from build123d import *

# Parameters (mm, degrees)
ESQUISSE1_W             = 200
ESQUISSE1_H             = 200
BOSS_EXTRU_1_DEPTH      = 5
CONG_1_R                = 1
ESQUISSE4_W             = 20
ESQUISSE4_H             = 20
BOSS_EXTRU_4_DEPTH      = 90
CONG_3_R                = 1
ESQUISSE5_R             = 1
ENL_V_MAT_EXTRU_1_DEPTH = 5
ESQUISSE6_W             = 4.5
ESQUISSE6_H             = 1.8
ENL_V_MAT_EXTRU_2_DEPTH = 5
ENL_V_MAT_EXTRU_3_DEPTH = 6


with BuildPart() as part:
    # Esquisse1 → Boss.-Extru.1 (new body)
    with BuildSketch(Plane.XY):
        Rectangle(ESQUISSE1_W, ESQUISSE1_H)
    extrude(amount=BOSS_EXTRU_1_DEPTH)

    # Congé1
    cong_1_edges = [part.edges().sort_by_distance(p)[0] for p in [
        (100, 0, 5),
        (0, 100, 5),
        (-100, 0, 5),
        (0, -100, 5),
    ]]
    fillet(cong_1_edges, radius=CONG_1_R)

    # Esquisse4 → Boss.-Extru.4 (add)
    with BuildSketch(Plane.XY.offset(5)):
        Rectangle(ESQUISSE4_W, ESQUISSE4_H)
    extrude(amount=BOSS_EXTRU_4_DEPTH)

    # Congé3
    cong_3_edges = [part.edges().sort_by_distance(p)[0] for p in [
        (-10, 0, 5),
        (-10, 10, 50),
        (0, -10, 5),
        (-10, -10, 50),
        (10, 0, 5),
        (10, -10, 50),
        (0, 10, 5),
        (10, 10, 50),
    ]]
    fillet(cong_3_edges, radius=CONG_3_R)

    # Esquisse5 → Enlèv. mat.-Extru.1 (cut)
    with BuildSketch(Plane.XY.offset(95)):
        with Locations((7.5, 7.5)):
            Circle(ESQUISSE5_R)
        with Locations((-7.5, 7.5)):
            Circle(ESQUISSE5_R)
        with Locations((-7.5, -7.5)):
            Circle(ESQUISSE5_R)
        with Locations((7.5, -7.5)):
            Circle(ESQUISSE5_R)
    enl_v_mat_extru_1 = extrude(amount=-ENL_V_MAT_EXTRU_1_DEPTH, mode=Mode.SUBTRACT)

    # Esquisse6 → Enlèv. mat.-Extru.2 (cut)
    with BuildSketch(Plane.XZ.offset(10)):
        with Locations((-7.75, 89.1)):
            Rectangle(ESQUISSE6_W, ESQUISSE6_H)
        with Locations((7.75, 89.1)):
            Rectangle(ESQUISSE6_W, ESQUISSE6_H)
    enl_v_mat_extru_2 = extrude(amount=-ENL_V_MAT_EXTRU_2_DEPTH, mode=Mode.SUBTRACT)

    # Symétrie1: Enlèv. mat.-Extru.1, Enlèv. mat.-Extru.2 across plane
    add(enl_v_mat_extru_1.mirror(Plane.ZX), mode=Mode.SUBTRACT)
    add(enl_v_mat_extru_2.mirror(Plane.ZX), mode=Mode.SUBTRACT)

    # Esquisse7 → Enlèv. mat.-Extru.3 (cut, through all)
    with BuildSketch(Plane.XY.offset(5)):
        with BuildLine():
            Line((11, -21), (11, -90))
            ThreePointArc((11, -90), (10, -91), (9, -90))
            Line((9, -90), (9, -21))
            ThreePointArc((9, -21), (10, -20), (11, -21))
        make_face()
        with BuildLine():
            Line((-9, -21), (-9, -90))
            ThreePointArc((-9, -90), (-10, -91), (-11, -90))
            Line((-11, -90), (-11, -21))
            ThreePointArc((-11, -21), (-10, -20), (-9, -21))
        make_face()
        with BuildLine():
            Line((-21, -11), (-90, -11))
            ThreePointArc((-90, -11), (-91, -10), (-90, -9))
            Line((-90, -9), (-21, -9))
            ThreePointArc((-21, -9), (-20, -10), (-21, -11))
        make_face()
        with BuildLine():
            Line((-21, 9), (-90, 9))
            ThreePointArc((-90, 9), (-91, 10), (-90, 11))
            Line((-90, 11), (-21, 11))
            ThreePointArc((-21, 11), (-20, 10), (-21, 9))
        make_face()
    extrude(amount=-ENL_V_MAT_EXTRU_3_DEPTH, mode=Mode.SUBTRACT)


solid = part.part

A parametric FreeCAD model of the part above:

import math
import FreeCAD as App
import Part
import Sketcher
from FreeCAD import Vector
Q = App.Units.Quantity


def edges_at(feature, points):
    """Names of the edges that pass closest to the given points."""
    edges = feature.Shape.Edges
    near = lambda p: min(range(len(edges)), key=lambda i: edges[i].distToShape(Part.Vertex(*p))[0])
    return sorted({f"Edge{near(p) + 1}" for p in points})

doc = App.newDocument("Part")
body = doc.addObject("PartDesign::Body", "Body")

# Sketch on XY plane
sketch1 = body.newObject("Sketcher::SketchObject", "Sketch")
sketch1.AttachmentSupport = (doc.getObject("XY_Plane"), [""])
sketch1.MapMode = "FlatFace"
sketch1.addGeometry([
    Part.LineSegment(Vector(-100, 100, 0), Vector(-100, -100, 0)),
    Part.LineSegment(Vector(-100, -100, 0), Vector(100, -100, 0)),
    Part.LineSegment(Vector(100, -100, 0), Vector(100, 100, 0)),
    Part.LineSegment(Vector(100, 100, 0), Vector(-100, 100, 0)),
], False)
sketch1.addConstraint([
    Sketcher.Constraint("Coincident", 0, 2, 1, 1),
    Sketcher.Constraint("Coincident", 1, 2, 2, 1),
    Sketcher.Constraint("Coincident", 2, 2, 3, 1),
    Sketcher.Constraint("Coincident", 3, 2, 0, 1),
    Sketcher.Constraint("Vertical", 0),
    Sketcher.Constraint("Horizontal", 1),
    Sketcher.Constraint("Vertical", 2),
    Sketcher.Constraint("Horizontal", 3),
    Sketcher.Constraint("Symmetric", 0, 2, 2, 2, -1, 1),
    Sketcher.Constraint("Equal", 3, 0),
    Sketcher.Constraint("DistanceX", 1, 1, 1, 2, Q("200 mm")),
])
pad1 = body.newObject("PartDesign::Pad", "Pad")
pad1.Profile = sketch1
pad1.Length = 5
doc.recompute()

fillet = body.newObject("PartDesign::Fillet", "Fillet")
fillet.Base = (pad1, edges_at(pad1, [
    (100, 0, 5),
    (0, 100, 5),
    (-100, 0, 5),
    (0, -100, 5),
]))
fillet.Radius = 1

# Sketch on XY plane
sketch2 = body.newObject("Sketcher::SketchObject", "Sketch001")
sketch2.AttachmentSupport = (doc.getObject("XY_Plane"), [""])
sketch2.MapMode = "FlatFace"
sketch2.AttachmentOffset = App.Placement(Vector(0, 0, 5), App.Rotation())
sketch2.addGeometry([
    Part.LineSegment(Vector(-10, 10, 0), Vector(-10, -10, 0)),
    Part.LineSegment(Vector(-10, -10, 0), Vector(10, -10, 0)),
    Part.LineSegment(Vector(10, -10, 0), Vector(10, 10, 0)),
    Part.LineSegment(Vector(10, 10, 0), Vector(-10, 10, 0)),
], False)
sketch2.addConstraint([
    Sketcher.Constraint("Coincident", 0, 2, 1, 1),
    Sketcher.Constraint("Coincident", 1, 2, 2, 1),
    Sketcher.Constraint("Coincident", 2, 2, 3, 1),
    Sketcher.Constraint("Coincident", 3, 2, 0, 1),
    Sketcher.Constraint("Vertical", 0),
    Sketcher.Constraint("Horizontal", 1),
    Sketcher.Constraint("Vertical", 2),
    Sketcher.Constraint("Horizontal", 3),
    Sketcher.Constraint("Symmetric", 0, 2, 2, 2, -1, 1),
    Sketcher.Constraint("Equal", 3, 0),
    Sketcher.Constraint("DistanceX", 1, 1, 1, 2, Q("20 mm")),
])
pad2 = body.newObject("PartDesign::Pad", "Pad001")
pad2.Profile = sketch2
pad2.Length = 90
doc.recompute()

fillet2 = body.newObject("PartDesign::Fillet", "Fillet001")
fillet2.Base = (pad2, edges_at(pad2, [
    (-10, 0, 5),
    (-10, 10, 50),
    (0, -10, 5),
    (-10, -10, 50),
    (10, 0, 5),
    (10, -10, 50),
    (0, 10, 5),
    (10, 10, 50),
]))
fillet2.Radius = 1

# Sketch on XY plane
sketch3 = body.newObject("Sketcher::SketchObject", "Sketch002")
sketch3.AttachmentSupport = (doc.getObject("XY_Plane"), [""])
sketch3.MapMode = "FlatFace"
sketch3.AttachmentOffset = App.Placement(Vector(0, 0, 95), App.Rotation())
sketch3.addGeometry([
    Part.Circle(Vector(7.5, 7.5, 0), Vector(0, 0, 1), 1),
    Part.Circle(Vector(-7.5, 7.5, 0), Vector(0, 0, 1), 1),
    Part.Circle(Vector(-7.5, -7.5, 0), Vector(0, 0, 1), 1),
    Part.Circle(Vector(7.5, -7.5, 0), Vector(0, 0, 1), 1),
], False)
sketch3.addConstraint([
    Sketcher.Constraint("Equal", 0, 1),
    Sketcher.Constraint("Equal", 1, 2),
    Sketcher.Constraint("Equal", 2, 3),
    Sketcher.Constraint("Symmetric", 0, 3, 2, 3, -1, 1),
    Sketcher.Constraint("Symmetric", 1, 3, 3, 3, -1, 1),
    Sketcher.Constraint("Symmetric", 0, 3, 1, 3, -2),
    Sketcher.Constraint("Diameter", 0, Q("2 mm")),
    Sketcher.Constraint("DistanceX", 1, 3, 0, 3, Q("15 mm")),
    Sketcher.Constraint("DistanceY", 2, 3, 1, 3, Q("15 mm")),
])
pocket1 = body.newObject("PartDesign::Pocket", "Pocket")
pocket1.Profile = sketch3
pocket1.Length = 5

# Sketch on XZ plane
sketch4 = body.newObject("Sketcher::SketchObject", "Sketch003")
sketch4.AttachmentSupport = (doc.getObject("XZ_Plane"), [""])
sketch4.MapMode = "FlatFace"
sketch4.AttachmentOffset = App.Placement(Vector(0, 0, 10), App.Rotation())
sketch4.addGeometry([
    Part.LineSegment(Vector(-10, 90, 0), Vector(-10, 88.2, 0)),  # 0
    Part.LineSegment(Vector(-10, 88.2, 0), Vector(-5.5, 88.2, 0)),  # 1
    Part.LineSegment(Vector(-5.5, 88.2, 0), Vector(-5.5, 90, 0)),  # 2
    Part.LineSegment(Vector(-5.5, 90, 0), Vector(-10, 90, 0)),  # 3
    Part.LineSegment(Vector(5.5, 90, 0), Vector(5.5, 88.2, 0)),  # 4
    Part.LineSegment(Vector(5.5, 88.2, 0), Vector(10, 88.2, 0)),  # 5
    Part.LineSegment(Vector(10, 88.2, 0), Vector(10, 90, 0)),  # 6
    Part.LineSegment(Vector(10, 90, 0), Vector(5.5, 90, 0)),  # 7
], False)
sketch4.addConstraint([
    Sketcher.Constraint("Coincident", 0, 2, 1, 1),
    Sketcher.Constraint("Coincident", 1, 2, 2, 1),
    Sketcher.Constraint("Coincident", 2, 2, 3, 1),
    Sketcher.Constraint("Coincident", 3, 2, 0, 1),
    Sketcher.Constraint("Coincident", 4, 2, 5, 1),
    Sketcher.Constraint("Coincident", 5, 2, 6, 1),
    Sketcher.Constraint("Coincident", 6, 2, 7, 1),
    Sketcher.Constraint("Coincident", 7, 2, 4, 1),
    Sketcher.Constraint("Vertical", 0),
    Sketcher.Constraint("Horizontal", 1),
    Sketcher.Constraint("Vertical", 2),
    Sketcher.Constraint("Horizontal", 3),
    Sketcher.Constraint("Vertical", 4),
    Sketcher.Constraint("Horizontal", 5),
    Sketcher.Constraint("Vertical", 6),
    Sketcher.Constraint("Horizontal", 7),
    Sketcher.Constraint("Symmetric", 1, 2, 4, 2, -2),
    Sketcher.Constraint("Symmetric", 3, 2, 6, 2, -2),
    Sketcher.Constraint("DistanceX", 1, 1, 1, 2, Q("4.5 mm")),
    Sketcher.Constraint("DistanceY", 0, 2, 0, 1, Q("1.8 mm")),
    Sketcher.Constraint("DistanceX", 0, 2, -1, 1, Q("10 mm")),
    Sketcher.Constraint("DistanceY", -1, 1, 2, 2, Q("90 mm")),
])
pocket2 = body.newObject("PartDesign::Pocket", "Pocket001")
pocket2.Profile = sketch4
pocket2.Length = 5
doc.recompute()

mirrored = body.newObject("PartDesign::Mirrored", "Mirrored")
mirrored.Originals = [pocket1, pocket2]
mirrored.MirrorPlane = (doc.getObject("XZ_Plane"), [""])
body.Tip = mirrored

# Sketch on XY plane
sketch5 = body.newObject("Sketcher::SketchObject", "Sketch004")
sketch5.AttachmentSupport = (doc.getObject("XY_Plane"), [""])
sketch5.MapMode = "FlatFace"
sketch5.AttachmentOffset = App.Placement(Vector(0, 0, 5), App.Rotation())
sketch5.addGeometry([
    Part.LineSegment(Vector(11, -90, 0), Vector(11, -21, 0)),  # 0
    Part.ArcOfCircle(Part.Circle(Vector(10, -21, 0), Vector(0, 0, 1), 1), math.radians(0), math.radians(180)),  # 1
    Part.LineSegment(Vector(9, -21, 0), Vector(9, -90, 0)),  # 2
    Part.ArcOfCircle(Part.Circle(Vector(10, -90, 0), Vector(0, 0, 1), 1), math.radians(180), math.radians(360)),  # 3
    Part.LineSegment(Vector(-9, -90, 0), Vector(-9, -21, 0)),  # 4
    Part.ArcOfCircle(Part.Circle(Vector(-10, -21, 0), Vector(0, 0, 1), 1), math.radians(0), math.radians(180)),  # 5
    Part.LineSegment(Vector(-11, -21, 0), Vector(-11, -90, 0)),  # 6
    Part.ArcOfCircle(Part.Circle(Vector(-10, -90, 0), Vector(0, 0, 1), 1), math.radians(180), math.radians(360)),  # 7
    Part.LineSegment(Vector(-90, -11, 0), Vector(-21, -11, 0)),  # 8
    Part.ArcOfCircle(Part.Circle(Vector(-21, -10, 0), Vector(0, 0, 1), 1), math.radians(-90), math.radians(90)),  # 9
    Part.LineSegment(Vector(-21, -9, 0), Vector(-90, -9, 0)),  # 10
    Part.ArcOfCircle(Part.Circle(Vector(-90, -10, 0), Vector(0, 0, 1), 1), math.radians(90), math.radians(270)),  # 11
    Part.LineSegment(Vector(-90, 9, 0), Vector(-21, 9, 0)),  # 12
    Part.ArcOfCircle(Part.Circle(Vector(-21, 10, 0), Vector(0, 0, 1), 1), math.radians(-90), math.radians(90)),  # 13
    Part.LineSegment(Vector(-21, 11, 0), Vector(-90, 11, 0)),  # 14
    Part.ArcOfCircle(Part.Circle(Vector(-90, 10, 0), Vector(0, 0, 1), 1), math.radians(90), math.radians(270)),  # 15
], False)
sketch5.addConstraint([
    Sketcher.Constraint("Tangent", 0, 2, 1, 1),
    Sketcher.Constraint("Tangent", 1, 2, 2, 1),
    Sketcher.Constraint("Tangent", 2, 2, 3, 1),
    Sketcher.Constraint("Tangent", 3, 2, 0, 1),
    Sketcher.Constraint("Tangent", 4, 2, 5, 1),
    Sketcher.Constraint("Tangent", 5, 2, 6, 1),
    Sketcher.Constraint("Tangent", 6, 2, 7, 1),
    Sketcher.Constraint("Tangent", 7, 2, 4, 1),
    Sketcher.Constraint("Tangent", 8, 2, 9, 1),
    Sketcher.Constraint("Tangent", 9, 2, 10, 1),
    Sketcher.Constraint("Tangent", 10, 2, 11, 1),
    Sketcher.Constraint("Tangent", 11, 2, 8, 1),
    Sketcher.Constraint("Tangent", 12, 2, 13, 1),
    Sketcher.Constraint("Tangent", 13, 2, 14, 1),
    Sketcher.Constraint("Tangent", 14, 2, 15, 1),
    Sketcher.Constraint("Tangent", 15, 2, 12, 1),
    Sketcher.Constraint("Vertical", 0),
    Sketcher.Constraint("Vertical", 2),
    Sketcher.Constraint("Vertical", 4),
    Sketcher.Constraint("Vertical", 6),
    Sketcher.Constraint("Horizontal", 8),
    Sketcher.Constraint("Horizontal", 10),
    Sketcher.Constraint("Horizontal", 12),
    Sketcher.Constraint("Horizontal", 14),
    Sketcher.Constraint("Equal", 3, 5),
    Sketcher.Constraint("Equal", 7, 9),
    Sketcher.Constraint("Equal", 11, 13),
    Sketcher.Constraint("Symmetric", 1, 3, 5, 3, -2),
    Sketcher.Constraint("Symmetric", 9, 3, 13, 3, -1),
    Sketcher.Constraint("Horizontal", 3, 3, 7, 3),
    Sketcher.Constraint("Vertical", 11, 3, 15, 3),
    Sketcher.Constraint("Equal", 14, 0),
    Sketcher.Constraint("Radius", 1, Q("1 mm")),
    Sketcher.Constraint("DistanceX", 8, 1, 8, 2, Q("69 mm")),
    Sketcher.Constraint("DistanceX", -1, 1, 1, 3, Q("10 mm")),
    Sketcher.Constraint("DistanceY", 1, 3, -1, 1, Q("21 mm")),
    Sketcher.Constraint("DistanceX", 9, 3, -1, 1, Q("21 mm")),
    Sketcher.Constraint("DistanceY", 9, 3, -1, 1, Q("10 mm")),
])
pocket3 = body.newObject("PartDesign::Pocket", "Pocket002")
pocket3.Profile = sketch5
pocket3.Type = "ThroughAll"

doc.recompute()
